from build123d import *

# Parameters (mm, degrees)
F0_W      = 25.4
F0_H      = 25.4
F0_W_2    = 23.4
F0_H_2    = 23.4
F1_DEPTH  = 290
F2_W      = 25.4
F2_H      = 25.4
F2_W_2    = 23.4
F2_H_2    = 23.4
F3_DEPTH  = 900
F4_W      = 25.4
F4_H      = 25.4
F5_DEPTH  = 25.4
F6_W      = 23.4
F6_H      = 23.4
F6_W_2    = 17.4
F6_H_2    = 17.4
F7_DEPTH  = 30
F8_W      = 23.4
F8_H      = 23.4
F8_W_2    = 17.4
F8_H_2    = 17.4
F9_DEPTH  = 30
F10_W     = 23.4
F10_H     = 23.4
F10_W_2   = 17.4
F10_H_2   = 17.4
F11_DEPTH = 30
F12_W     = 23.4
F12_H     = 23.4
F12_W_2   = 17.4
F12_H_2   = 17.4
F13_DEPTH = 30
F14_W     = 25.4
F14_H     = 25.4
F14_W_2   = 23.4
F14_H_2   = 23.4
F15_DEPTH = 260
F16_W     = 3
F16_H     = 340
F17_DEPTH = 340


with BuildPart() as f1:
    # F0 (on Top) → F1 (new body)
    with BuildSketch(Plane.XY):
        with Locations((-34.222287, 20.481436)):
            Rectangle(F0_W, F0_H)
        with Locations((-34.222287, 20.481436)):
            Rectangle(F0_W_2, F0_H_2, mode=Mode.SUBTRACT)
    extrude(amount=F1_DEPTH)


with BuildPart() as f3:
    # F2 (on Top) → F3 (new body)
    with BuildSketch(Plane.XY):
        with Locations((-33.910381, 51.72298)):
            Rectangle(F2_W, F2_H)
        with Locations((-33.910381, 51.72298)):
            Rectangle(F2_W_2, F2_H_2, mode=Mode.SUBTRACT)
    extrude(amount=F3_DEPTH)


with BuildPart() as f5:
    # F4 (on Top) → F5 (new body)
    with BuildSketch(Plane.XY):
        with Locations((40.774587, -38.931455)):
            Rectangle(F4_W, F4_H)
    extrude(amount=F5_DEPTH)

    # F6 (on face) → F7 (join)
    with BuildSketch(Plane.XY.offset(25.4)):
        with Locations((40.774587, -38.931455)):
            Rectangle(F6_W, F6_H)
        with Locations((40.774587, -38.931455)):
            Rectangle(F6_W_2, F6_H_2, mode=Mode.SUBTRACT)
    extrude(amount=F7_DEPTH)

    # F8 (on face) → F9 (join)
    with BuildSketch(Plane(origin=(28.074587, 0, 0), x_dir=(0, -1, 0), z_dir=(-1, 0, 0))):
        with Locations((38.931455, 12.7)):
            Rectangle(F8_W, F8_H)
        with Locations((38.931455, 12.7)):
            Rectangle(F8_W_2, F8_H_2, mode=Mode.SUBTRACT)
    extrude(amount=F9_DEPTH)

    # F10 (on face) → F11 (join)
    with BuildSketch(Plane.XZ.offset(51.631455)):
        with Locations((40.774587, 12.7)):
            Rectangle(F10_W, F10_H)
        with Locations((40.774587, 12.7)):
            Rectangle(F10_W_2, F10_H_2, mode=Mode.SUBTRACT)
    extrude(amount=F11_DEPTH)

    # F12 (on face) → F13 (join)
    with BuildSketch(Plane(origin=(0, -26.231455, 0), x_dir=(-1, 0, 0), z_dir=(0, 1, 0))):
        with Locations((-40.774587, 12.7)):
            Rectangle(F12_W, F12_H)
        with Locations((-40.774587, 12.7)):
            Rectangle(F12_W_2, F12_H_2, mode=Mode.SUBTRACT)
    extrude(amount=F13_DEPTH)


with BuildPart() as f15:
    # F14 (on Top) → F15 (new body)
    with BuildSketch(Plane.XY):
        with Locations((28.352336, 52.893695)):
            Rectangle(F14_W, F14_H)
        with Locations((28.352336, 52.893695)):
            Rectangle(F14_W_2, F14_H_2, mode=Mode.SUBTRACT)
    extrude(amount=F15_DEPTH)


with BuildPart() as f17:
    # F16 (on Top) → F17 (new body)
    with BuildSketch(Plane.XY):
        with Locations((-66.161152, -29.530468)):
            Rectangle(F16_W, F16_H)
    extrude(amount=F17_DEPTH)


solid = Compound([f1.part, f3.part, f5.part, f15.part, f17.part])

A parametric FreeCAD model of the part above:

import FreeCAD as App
import Part
import Sketcher


def add_polygon(sketch, points):
    """Adds a closed chain of lines whose ends are joined by coincident constraints."""
    first, n = sketch.GeometryCount, len(points)
    for a, b in zip(points, points[1:] + points[:1]):
        sketch.addGeometry(Part.LineSegment(App.Vector(*a, 0), App.Vector(*b, 0)), False)
    for i in range(n):
        sketch.addConstraint(Sketcher.Constraint("Coincident", first + i, 2, first + (i + 1) % n, 1))

doc = App.newDocument("Part")
params = doc.addObject("Spreadsheet::Sheet", "Params")
for row, (alias, value) in enumerate([
    ("sketch1_width", "25.4 mm"),
    ("sketch1_width2", "23.4 mm"),
    ("pad1_length", "290 mm"),
    ("sketch2_width", "25.4 mm"),
    ("sketch2_width2", "23.4 mm"),
    ("pad2_length", "900 mm"),
    ("sketch3_width", "25.4 mm"),
    ("pad3_length", "25.4 mm"),
    ("sketch4_width", "23.4 mm"),
    ("sketch4_width2", "17.4 mm"),
    ("pad4_length", "30 mm"),
    ("sketch5_width", "23.4 mm"),
    ("sketch5_width2", "17.4 mm"),
    ("pad5_length", "30 mm"),
    ("sketch6_width", "23.4 mm"),
    ("sketch6_width2", "17.4 mm"),
    ("pad6_length", "30 mm"),
    ("sketch7_width", "23.4 mm"),
    ("sketch7_width2", "17.4 mm"),
    ("pad7_length", "30 mm"),
    ("sketch8_width", "25.4 mm"),
    ("sketch8_width2", "23.4 mm"),
    ("pad8_length", "260 mm"),
    ("sketch9_width", "3 mm"),
    ("sketch9_height", "340 mm"),
    ("pad9_length", "340 mm"),
], start=1):
    params.set(f"A{row}", alias)
    params.set(f"B{row}", "=" + value)
    params.setAlias(f"B{row}", alias)

body = doc.addObject("PartDesign::Body", "Body")

# Sketch on XY plane
sketch1 = body.newObject("Sketcher::SketchObject", "Sketch")
sketch1.AttachmentSupport = (doc.getObject("XY_Plane"), [""])
sketch1.MapMode = "FlatFace"
add_polygon(sketch1, [(-47, 33), (-47, 8), (-22, 8), (-22, 33)])  # lines 0-3
add_polygon(sketch1, [(-23, 9), (-46, 9), (-46, 32), (-23, 32)])  # lines 4-7
sketch1.addConstraint(Sketcher.Constraint("Vertical", 0))
sketch1.addConstraint(Sketcher.Constraint("Horizontal", 1))
sketch1.addConstraint(Sketcher.Constraint("Vertical", 2))
sketch1.addConstraint(Sketcher.Constraint("Horizontal", 3))
sketch1.addConstraint(Sketcher.Constraint("Horizontal", 4))
sketch1.addConstraint(Sketcher.Constraint("Vertical", 5))
sketch1.addConstraint(Sketcher.Constraint("Horizontal", 6))
sketch1.addConstraint(Sketcher.Constraint("Vertical", 7))
sketch1.addConstraint(Sketcher.Constraint("Equal", 3, 0))
sketch1.addConstraint(Sketcher.Constraint("Equal", 6, 5))
sketch1.addConstraint(Sketcher.Constraint("DistanceX", 1, 1, 1, 2, 25.4))
sketch1.addConstraint(Sketcher.Constraint("DistanceX", 4, 2, 4, 1, 23.4))
sketch1.addConstraint(Sketcher.Constraint("DistanceX", 0, 2, 4, 2, 1.0))
sketch1.addConstraint(Sketcher.Constraint("DistanceY", 0, 2, 4, 2, 1.0))
sketch1.addConstraint(Sketcher.Constraint("DistanceX", 0, 2, -1, 1, 46.922287))
sketch1.addConstraint(Sketcher.Constraint("DistanceY", -1, 1, 0, 2, 7.781436))
sketch1.setExpression("Constraints[18]", "Params.sketch1_width")
sketch1.setExpression("Constraints[19]", "Params.sketch1_width2")
pad1 = body.newObject("PartDesign::Pad", "Pad")
pad1.Profile = sketch1
pad1.setExpression("Length", "Params.pad1_length")
body2 = doc.addObject("PartDesign::Body", "Body001")

# Sketch on XY plane
sketch2 = body2.newObject("Sketcher::SketchObject", "Sketch001")
sketch2.AttachmentSupport = (doc.getObject("XY_Plane001"), [""])
sketch2.MapMode = "FlatFace"
add_polygon(sketch2, [(-47, 64), (-47, 39), (-21, 39), (-21, 64)])  # lines 0-3
add_polygon(sketch2, [(-22, 40), (-46, 40), (-46, 63), (-22, 63)])  # lines 4-7
sketch2.addConstraint(Sketcher.Constraint("Vertical", 0))
sketch2.addConstraint(Sketcher.Constraint("Horizontal", 1))
sketch2.addConstraint(Sketcher.Constraint("Vertical", 2))
sketch2.addConstraint(Sketcher.Constraint("Horizontal", 3))
sketch2.addConstraint(Sketcher.Constraint("Horizontal", 4))
sketch2.addConstraint(Sketcher.Constraint("Vertical", 5))
sketch2.addConstraint(Sketcher.Constraint("Horizontal", 6))
sketch2.addConstraint(Sketcher.Constraint("Vertical", 7))
sketch2.addConstraint(Sketcher.Constraint("Equal", 3, 0))
sketch2.addConstraint(Sketcher.Constraint("Equal", 6, 5))
sketch2.addConstraint(Sketcher.Constraint("DistanceX", 1, 1, 1, 2, 25.4))
sketch2.addConstraint(Sketcher.Constraint("DistanceX", 4, 2, 4, 1, 23.4))
sketch2.addConstraint(Sketcher.Constraint("DistanceX", 0, 2, 4, 2, 1.0))
sketch2.addConstraint(Sketcher.Constraint("DistanceY", 0, 2, 4, 2, 1.0))
sketch2.addConstraint(Sketcher.Constraint("DistanceX", 0, 2, -1, 1, 46.610381))
sketch2.addConstraint(Sketcher.Constraint("DistanceY", -1, 1, 0, 2, 39.02298))
sketch2.setExpression("Constraints[18]", "Params.sketch2_width")
sketch2.setExpression("Constraints[19]", "Params.sketch2_width2")
pad2 = body2.newObject("PartDesign::Pad", "Pad001")
pad2.Profile = sketch2
pad2.setExpression("Length", "Params.pad2_length")
body3 = doc.addObject("PartDesign::Body", "Body002")

# Sketch on XY plane
sketch3 = body3.newObject("Sketcher::SketchObject", "Sketch002")
sketch3.AttachmentSupport = (doc.getObject("XY_Plane002"), [""])
sketch3.MapMode = "FlatFace"
add_polygon(sketch3, [(28, -26), (28, -52), (53, -52), (53, -26)])  # lines 0-3
sketch3.addConstraint(Sketcher.Constraint("Vertical", 0))
sketch3.addConstraint(Sketcher.Constraint("Horizontal", 1))
sketch3.addConstraint(Sketcher.Constraint("Vertical", 2))
sketch3.addConstraint(Sketcher.Constraint("Horizontal", 3))
sketch3.addConstraint(Sketcher.Constraint("Equal", 3, 0))
sketch3.addConstraint(Sketcher.Constraint("DistanceX", 1, 1, 1, 2, 25.4))
sketch3.addConstraint(Sketcher.Constraint("DistanceX", -1, 1, 0, 2, 28.074587))
sketch3.addConstraint(Sketcher.Constraint("DistanceY", 0, 2, -1, 1, 51.631455))
sketch3.setExpression("Constraints[9]", "Params.sketch3_width")
pad3 = body3.newObject("PartDesign::Pad", "Pad002")
pad3.Profile = sketch3
pad3.setExpression("Length", "Params.pad3_length")

# Sketch on XY plane
sketch4 = body3.newObject("Sketcher::SketchObject", "Sketch003")
sketch4.AttachmentSupport = (doc.getObject("XY_Plane002"), [""])
sketch4.MapMode = "FlatFace"
sketch4.AttachmentOffset = App.Placement(App.Vector(0, 0, 25.4), App.Rotation())
add_polygon(sketch4, [(29, -27), (29, -51), (52, -51), (52, -27)])  # lines 0-3
add_polygon(sketch4, [(49, -48), (32, -48), (32, -30), (49, -30)])  # lines 4-7
sketch4.addConstraint(Sketcher.Constraint("Vertical", 0))
sketch4.addConstraint(Sketcher.Constraint("Horizontal", 1))
sketch4.addConstraint(Sketcher.Constraint("Vertical", 2))
sketch4.addConstraint(Sketcher.Constraint("Horizontal", 3))
sketch4.addConstraint(Sketcher.Constraint("Horizontal", 4))
sketch4.addConstraint(Sketcher.Constraint("Vertical", 5))
sketch4.addConstraint(Sketcher.Constraint("Horizontal", 6))
sketch4.addConstraint(Sketcher.Constraint("Vertical", 7))
sketch4.addConstraint(Sketcher.Constraint("Equal", 3, 0))
sketch4.addConstraint(Sketcher.Constraint("Equal", 6, 5))
sketch4.addConstraint(Sketcher.Constraint("DistanceX", 1, 1, 1, 2, 23.4))
sketch4.addConstraint(Sketcher.Constraint("DistanceX", 4, 2, 4, 1, 17.4))
sketch4.addConstraint(Sketcher.Constraint("DistanceX", 0, 2, 4, 2, 3.0))
sketch4.addConstraint(Sketcher.Constraint("DistanceY", 0, 2, 4, 2, 3.0))
sketch4.addConstraint(Sketcher.Constraint("DistanceX", -1, 1, 0, 2, 29.074587))
sketch4.addConstraint(Sketcher.Constraint("DistanceY", 0, 2, -1, 1, 50.631455))
sketch4.setExpression("Constraints[18]", "Params.sketch4_width")
sketch4.setExpression("Constraints[19]", "Params.sketch4_width2")
pad4 = body3.newObject("PartDesign::Pad", "Pad003")
pad4.Profile = sketch4
pad4.setExpression("Length", "Params.pad4_length")

# Sketch on YZ plane
sketch5 = body3.newObject("Sketcher::SketchObject", "Sketch004")
sketch5.AttachmentSupport = (doc.getObject("YZ_Plane002"), [""])
sketch5.MapMode = "FlatFace"
sketch5.AttachmentOffset = App.Placement(App.Vector(0, 0, 28.074587), App.Rotation())
add_polygon(sketch5, [(-27, 24), (-27, 1), (-51, 1), (-51, 24)])  # lines 0-3
add_polygon(sketch5, [(-48, 4), (-30, 4), (-30, 21), (-48, 21)])  # lines 4-7
sketch5.addConstraint(Sketcher.Constraint("Vertical", 0))
sketch5.addConstraint(Sketcher.Constraint("Horizontal", 1))
sketch5.addConstraint(Sketcher.Constraint("Vertical", 2))
sketch5.addConstraint(Sketcher.Constraint("Horizontal", 3))
sketch5.addConstraint(Sketcher.Constraint("Horizontal", 4))
sketch5.addConstraint(Sketcher.Constraint("Vertical", 5))
sketch5.addConstraint(Sketcher.Constraint("Horizontal", 6))
sketch5.addConstraint(Sketcher.Constraint("Vertical", 7))
sketch5.addConstraint(Sketcher.Constraint("Equal", 3, 0))
sketch5.addConstraint(Sketcher.Constraint("Equal", 6, 5))
sketch5.addConstraint(Sketcher.Constraint("DistanceX", 1, 2, 1, 1, 23.4))
sketch5.addConstraint(Sketcher.Constraint("DistanceX", 4, 1, 4, 2, 17.4))
sketch5.addConstraint(Sketcher.Constraint("DistanceY", -1, 1, 0, 2, 1.0))
sketch5.addConstraint(Sketcher.Constraint("DistanceY", -1, 1, 4, 2, 4.0))
sketch5.addConstraint(Sketcher.Constraint("DistanceX", 4, 2, 0, 2, 3.0))
sketch5.addConstraint(Sketcher.Constraint("DistanceX", 0, 2, -1, 1, 27.231455))
sketch5.setExpression("Constraints[18]", "Params.sketch5_width")
sketch5.setExpression("Constraints[19]", "Params.sketch5_width2")
pad5 = body3.newObject("PartDesign::Pad", "Pad004")
pad5.Profile = sketch5
pad5.setExpression("Length", "Params.pad5_length")
pad5.Reversed = True

# Sketch on XZ plane
sketch6 = body3.newObject("Sketcher::SketchObject", "Sketch005")
sketch6.AttachmentSupport = (doc.getObject("XZ_Plane002"), [""])
sketch6.MapMode = "FlatFace"
sketch6.AttachmentOffset = App.Placement(App.Vector(0, 0, 51.631455), App.Rotation())
add_polygon(sketch6, [(29, 24), (29, 1), (52, 1), (52, 24)])  # lines 0-3
add_polygon(sketch6, [(49, 4), (32, 4), (32, 21), (49, 21)])  # lines 4-7
sketch6.addConstraint(Sketcher.Constraint("Vertical", 0))
sketch6.addConstraint(Sketcher.Constraint("Horizontal", 1))
sketch6.addConstraint(Sketcher.Constraint("Vertical", 2))
sketch6.addConstraint(Sketcher.Constraint("Horizontal", 3))
sketch6.addConstraint(Sketcher.Constraint("Horizontal", 4))
sketch6.addConstraint(Sketcher.Constraint("Vertical", 5))
sketch6.addConstraint(Sketcher.Constraint("Horizontal", 6))
sketch6.addConstraint(Sketcher.Constraint("Vertical", 7))
sketch6.addConstraint(Sketcher.Constraint("Equal", 3, 0))
sketch6.addConstraint(Sketcher.Constraint("Equal", 6, 5))
sketch6.addConstraint(Sketcher.Constraint("DistanceX", 1, 1, 1, 2, 23.4))
sketch6.addConstraint(Sketcher.Constraint("DistanceX", 4, 2, 4, 1, 17.4))
sketch6.addConstraint(Sketcher.Constraint("DistanceY", -1, 1, 0, 2, 1.0))
sketch6.addConstraint(Sketcher.Constraint("DistanceY", -1, 1, 4, 2, 4.0))
sketch6.addConstraint(Sketcher.Constraint("DistanceX", 0, 2, 4, 2, 3.0))
sketch6.addConstraint(Sketcher.Constraint("DistanceX", -1, 1, 0, 2, 29.074587))
sketch6.setExpression("Constraints[18]", "Params.sketch6_width")
sketch6.setExpression("Constraints[19]", "Params.sketch6_width2")
pad6 = body3.newObject("PartDesign::Pad", "Pad005")
pad6.Profile = sketch6
pad6.setExpression("Length", "Params.pad6_length")

# Sketch on XZ plane
sketch7 = body3.newObject("Sketcher::SketchObject", "Sketch006")
sketch7.AttachmentSupport = (doc.getObject("XZ_Plane002"), [""])
sketch7.MapMode = "FlatFace"
sketch7.AttachmentOffset = App.Placement(App.Vector(0, 0, 26.231455), App.Rotation())
add_polygon(sketch7, [(52, 24), (52, 1), (29, 1), (29, 24)])  # lines 0-3
add_polygon(sketch7, [(32, 4), (49, 4), (49, 21), (32, 21)])  # lines 4-7
sketch7.addConstraint(Sketcher.Constraint("Vertical", 0))
sketch7.addConstraint(Sketcher.Constraint("Horizontal", 1))
sketch7.addConstraint(Sketcher.Constraint("Vertical", 2))
sketch7.addConstraint(Sketcher.Constraint("Horizontal", 3))
sketch7.addConstraint(Sketcher.Constraint("Horizontal", 4))
sketch7.addConstraint(Sketcher.Constraint("Vertical", 5))
sketch7.addConstraint(Sketcher.Constraint("Horizontal", 6))
sketch7.addConstraint(Sketcher.Constraint("Vertical", 7))
sketch7.addConstraint(Sketcher.Constraint("Equal", 3, 0))
sketch7.addConstraint(Sketcher.Constraint("Equal", 6, 5))
sketch7.addConstraint(Sketcher.Constraint("DistanceX", 1, 2, 1, 1, 23.4))
sketch7.addConstraint(Sketcher.Constraint("DistanceX", 4, 1, 4, 2, 17.4))
sketch7.addConstraint(Sketcher.Constraint("DistanceY", -1, 1, 0, 2, 1.0))
sketch7.addConstraint(Sketcher.Constraint("DistanceY", -1, 1, 4, 2, 4.0))
sketch7.addConstraint(Sketcher.Constraint("DistanceX", 4, 2, 0, 2, 3.0))
sketch7.addConstraint(Sketcher.Constraint("DistanceX", -1, 1, 0, 2, 52.474587))
sketch7.setExpression("Constraints[18]", "Params.sketch7_width")
sketch7.setExpression("Constraints[19]", "Params.sketch7_width2")
pad7 = body3.newObject("PartDesign::Pad", "Pad006")
pad7.Profile = sketch7
pad7.setExpression("Length", "Params.pad7_length")
pad7.Reversed = True
body4 = doc.addObject("PartDesign::Body", "Body003")

# Sketch on XY plane
sketch8 = body4.newObject("Sketcher::SketchObject", "Sketch007")
sketch8.AttachmentSupport = (doc.getObject("XY_Plane003"), [""])
sketch8.MapMode = "FlatFace"
add_polygon(sketch8, [(16, 66), (16, 40), (41, 40), (41, 66)])  # lines 0-3
add_polygon(sketch8, [(40, 41), (17, 41), (17, 65), (40, 65)])  # lines 4-7
sketch8.addConstraint(Sketcher.Constraint("Vertical", 0))
sketch8.addConstraint(Sketcher.Constraint("Horizontal", 1))
sketch8.addConstraint(Sketcher.Constraint("Vertical", 2))
sketch8.addConstraint(Sketcher.Constraint("Horizontal", 3))
sketch8.addConstraint(Sketcher.Constraint("Horizontal", 4))
sketch8.addConstraint(Sketcher.Constraint("Vertical", 5))
sketch8.addConstraint(Sketcher.Constraint("Horizontal", 6))
sketch8.addConstraint(Sketcher.Constraint("Vertical", 7))
sketch8.addConstraint(Sketcher.Constraint("Equal", 3, 0))
sketch8.addConstraint(Sketcher.Constraint("Equal", 6, 5))
sketch8.addConstraint(Sketcher.Constraint("DistanceX", 1, 1, 1, 2, 25.4))
sketch8.addConstraint(Sketcher.Constraint("DistanceX", 4, 2, 4, 1, 23.4))
sketch8.addConstraint(Sketcher.Constraint("DistanceX", 0, 2, 4, 2, 1.0))
sketch8.addConstraint(Sketcher.Constraint("DistanceY", 0, 2, 4, 2, 1.0))
sketch8.addConstraint(Sketcher.Constraint("DistanceX", -1, 1, 0, 2, 15.652336))
sketch8.addConstraint(Sketcher.Constraint("DistanceY", -1, 1, 0, 2, 40.193695))
sketch8.setExpression("Constraints[18]", "Params.sketch8_width")
sketch8.setExpression("Constraints[19]", "Params.sketch8_width2")
pad8 = body4.newObject("PartDesign::Pad", "Pad007")
pad8.Profile = sketch8
pad8.setExpression("Length", "Params.pad8_length")
body5 = doc.addObject("PartDesign::Body", "Body004")

# Sketch on XY plane
sketch9 = body5.newObject("Sketcher::SketchObject", "Sketch008")
sketch9.AttachmentSupport = (doc.getObject("XY_Plane004"), [""])
sketch9.MapMode = "FlatFace"
add_polygon(sketch9, [(-67.7, 140.5), (-67.7, -199.5), (-64.7, -199.5), (-64.7, 140.5)])  # lines 0-3
sketch9.addConstraint(Sketcher.Constraint("Vertical", 0))
sketch9.addConstraint(Sketcher.Constraint("Horizontal", 1))
sketch9.addConstraint(Sketcher.Constraint("Vertical", 2))
sketch9.addConstraint(Sketcher.Constraint("Horizontal", 3))
sketch9.addConstraint(Sketcher.Constraint("DistanceX", 1, 1, 1, 2, 3.0))
sketch9.addConstraint(Sketcher.Constraint("DistanceY", 0, 2, 0, 1, 340.0))
sketch9.addConstraint(Sketcher.Constraint("DistanceX", 0, 2, -1, 1, 67.661152))
sketch9.addConstraint(Sketcher.Constraint("DistanceY", 0, 2, -1, 1, 199.530468))
sketch9.setExpression("Constraints[8]", "Params.sketch9_width")
sketch9.setExpression("Constraints[9]", "Params.sketch9_height")
pad9 = body5.newObject("PartDesign::Pad", "Pad008")
pad9.Profile = sketch9
pad9.setExpression("Length", "Params.pad9_length")

doc.recompute()
